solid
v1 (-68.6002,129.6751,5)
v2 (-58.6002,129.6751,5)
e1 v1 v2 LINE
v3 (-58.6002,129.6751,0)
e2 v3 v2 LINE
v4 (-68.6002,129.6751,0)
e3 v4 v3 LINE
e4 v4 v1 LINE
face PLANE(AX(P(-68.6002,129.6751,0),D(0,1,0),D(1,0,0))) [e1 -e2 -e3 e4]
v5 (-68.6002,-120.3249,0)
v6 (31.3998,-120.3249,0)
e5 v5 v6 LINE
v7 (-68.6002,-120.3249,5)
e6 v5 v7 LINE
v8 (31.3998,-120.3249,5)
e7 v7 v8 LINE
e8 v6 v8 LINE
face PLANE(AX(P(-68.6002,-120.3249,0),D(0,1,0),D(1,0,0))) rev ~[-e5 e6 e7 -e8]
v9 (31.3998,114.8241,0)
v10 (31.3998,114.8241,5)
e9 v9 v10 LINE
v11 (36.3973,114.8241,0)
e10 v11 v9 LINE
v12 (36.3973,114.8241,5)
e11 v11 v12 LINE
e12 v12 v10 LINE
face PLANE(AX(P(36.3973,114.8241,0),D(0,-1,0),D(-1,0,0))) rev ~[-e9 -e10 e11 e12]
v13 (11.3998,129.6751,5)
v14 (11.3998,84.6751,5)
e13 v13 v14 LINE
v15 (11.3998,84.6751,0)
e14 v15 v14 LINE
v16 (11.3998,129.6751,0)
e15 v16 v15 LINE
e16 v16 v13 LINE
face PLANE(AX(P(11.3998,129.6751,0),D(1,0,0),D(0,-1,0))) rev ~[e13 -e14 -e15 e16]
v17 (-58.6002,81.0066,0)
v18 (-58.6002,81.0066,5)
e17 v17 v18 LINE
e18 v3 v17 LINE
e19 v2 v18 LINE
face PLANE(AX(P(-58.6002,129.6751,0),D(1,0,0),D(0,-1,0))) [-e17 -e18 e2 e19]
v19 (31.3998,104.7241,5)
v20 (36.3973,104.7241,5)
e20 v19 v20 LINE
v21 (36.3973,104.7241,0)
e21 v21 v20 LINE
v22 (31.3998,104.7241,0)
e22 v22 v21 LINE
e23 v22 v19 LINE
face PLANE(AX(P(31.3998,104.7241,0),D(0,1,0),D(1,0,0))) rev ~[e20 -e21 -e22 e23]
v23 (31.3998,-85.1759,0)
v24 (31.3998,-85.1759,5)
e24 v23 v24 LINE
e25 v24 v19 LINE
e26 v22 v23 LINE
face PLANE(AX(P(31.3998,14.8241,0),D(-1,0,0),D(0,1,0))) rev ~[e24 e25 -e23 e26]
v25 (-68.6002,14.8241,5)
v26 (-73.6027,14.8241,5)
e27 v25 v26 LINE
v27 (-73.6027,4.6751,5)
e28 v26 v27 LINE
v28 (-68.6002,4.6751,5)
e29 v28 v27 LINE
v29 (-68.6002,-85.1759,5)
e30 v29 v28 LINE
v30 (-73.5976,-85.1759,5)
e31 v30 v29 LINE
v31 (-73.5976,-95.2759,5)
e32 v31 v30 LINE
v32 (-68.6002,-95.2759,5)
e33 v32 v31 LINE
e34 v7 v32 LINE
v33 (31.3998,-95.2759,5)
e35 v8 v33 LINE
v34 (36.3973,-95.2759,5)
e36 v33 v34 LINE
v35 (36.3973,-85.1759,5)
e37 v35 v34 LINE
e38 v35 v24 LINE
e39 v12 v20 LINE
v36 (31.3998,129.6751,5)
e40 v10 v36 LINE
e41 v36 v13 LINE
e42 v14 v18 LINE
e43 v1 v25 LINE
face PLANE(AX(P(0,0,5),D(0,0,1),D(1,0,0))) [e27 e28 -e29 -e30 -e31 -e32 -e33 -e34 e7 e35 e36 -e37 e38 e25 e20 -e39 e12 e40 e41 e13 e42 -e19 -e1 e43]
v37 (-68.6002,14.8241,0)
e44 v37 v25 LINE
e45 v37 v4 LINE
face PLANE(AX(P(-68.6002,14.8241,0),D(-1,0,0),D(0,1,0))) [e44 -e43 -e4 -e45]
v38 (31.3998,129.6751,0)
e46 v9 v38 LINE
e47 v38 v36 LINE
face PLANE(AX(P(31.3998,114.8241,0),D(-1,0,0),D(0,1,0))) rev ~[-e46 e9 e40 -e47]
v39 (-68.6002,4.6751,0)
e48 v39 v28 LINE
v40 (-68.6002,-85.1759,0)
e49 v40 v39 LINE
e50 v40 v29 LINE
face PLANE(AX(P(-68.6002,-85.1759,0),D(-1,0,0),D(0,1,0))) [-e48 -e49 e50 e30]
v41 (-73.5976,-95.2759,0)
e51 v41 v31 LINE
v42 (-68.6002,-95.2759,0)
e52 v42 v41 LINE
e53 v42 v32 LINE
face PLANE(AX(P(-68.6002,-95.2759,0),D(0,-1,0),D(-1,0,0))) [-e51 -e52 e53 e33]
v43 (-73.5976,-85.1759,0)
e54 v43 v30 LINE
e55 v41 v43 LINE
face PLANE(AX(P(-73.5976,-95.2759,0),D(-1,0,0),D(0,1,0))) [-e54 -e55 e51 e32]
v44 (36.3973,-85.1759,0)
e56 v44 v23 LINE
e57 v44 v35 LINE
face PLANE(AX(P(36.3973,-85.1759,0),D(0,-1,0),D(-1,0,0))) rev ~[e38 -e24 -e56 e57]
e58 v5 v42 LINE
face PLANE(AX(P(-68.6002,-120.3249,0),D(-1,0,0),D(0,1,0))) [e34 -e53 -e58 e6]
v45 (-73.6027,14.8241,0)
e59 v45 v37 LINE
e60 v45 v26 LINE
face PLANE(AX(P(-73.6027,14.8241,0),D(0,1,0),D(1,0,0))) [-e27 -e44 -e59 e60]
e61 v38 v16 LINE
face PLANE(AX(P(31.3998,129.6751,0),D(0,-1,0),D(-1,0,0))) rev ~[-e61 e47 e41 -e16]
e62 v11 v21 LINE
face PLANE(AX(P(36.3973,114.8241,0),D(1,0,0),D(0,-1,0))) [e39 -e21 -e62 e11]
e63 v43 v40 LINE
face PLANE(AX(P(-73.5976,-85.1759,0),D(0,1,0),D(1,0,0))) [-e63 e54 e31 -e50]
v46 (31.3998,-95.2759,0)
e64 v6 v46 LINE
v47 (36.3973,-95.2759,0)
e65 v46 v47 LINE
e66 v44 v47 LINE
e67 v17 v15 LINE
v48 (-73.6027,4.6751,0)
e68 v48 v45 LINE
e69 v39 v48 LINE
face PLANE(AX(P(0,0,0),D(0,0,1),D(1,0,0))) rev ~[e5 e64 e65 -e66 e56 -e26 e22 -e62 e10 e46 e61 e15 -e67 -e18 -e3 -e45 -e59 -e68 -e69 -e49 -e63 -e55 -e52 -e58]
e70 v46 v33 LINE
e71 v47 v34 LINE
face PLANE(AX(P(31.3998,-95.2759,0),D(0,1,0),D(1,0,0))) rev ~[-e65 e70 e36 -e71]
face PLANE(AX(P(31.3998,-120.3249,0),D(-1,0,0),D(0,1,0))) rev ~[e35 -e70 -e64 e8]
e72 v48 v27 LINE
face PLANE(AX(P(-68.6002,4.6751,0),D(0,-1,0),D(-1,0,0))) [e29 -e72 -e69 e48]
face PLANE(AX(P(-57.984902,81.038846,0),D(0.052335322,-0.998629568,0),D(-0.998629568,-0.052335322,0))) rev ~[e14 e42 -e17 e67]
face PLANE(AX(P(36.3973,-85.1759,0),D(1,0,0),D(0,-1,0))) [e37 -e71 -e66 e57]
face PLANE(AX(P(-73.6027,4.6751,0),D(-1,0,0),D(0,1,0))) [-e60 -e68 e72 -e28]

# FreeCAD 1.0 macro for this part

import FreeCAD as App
import Part
import Sketcher

V = App.Vector
Q = App.Units.Quantity


def add_polygon(sketch, points):
    """Adds a closed chain of lines whose ends are joined by coincident constraints."""
    first, n = sketch.GeometryCount, len(points)
    for a, b in zip(points, points[1:] + points[:1]):
        sketch.addGeometry(Part.LineSegment(App.Vector(*a, 0), App.Vector(*b, 0)), False)
    for i in range(n):
        sketch.addConstraint(Sketcher.Constraint("Coincident", first + i, 2, first + (i + 1) % n, 1))

doc = App.newDocument("Part")
body = doc.addObject("PartDesign::Body", "Body")

sketch1 = body.newObject("Sketcher::SketchObject", "Sketch")
sketch1.AttachmentSupport = (doc.getObject("XY_Plane"), [""])
sketch1.MapMode = "FlatFace"
add_polygon(sketch1, [(-68.6, -95.3), (-68.6, -120.3), (31.4, -120.3), (31.4, -95.3), (36.4, -95.3), (36.4, -85.2), (31.4, -85.2), (31.4, 104.7), (36.4, 104.7), (36.4, 114.8), (31.4, 114.8), (31.4, 129.7), (11.4, 129.7), (11.4, 84.7), (-58.6, 81), (-58.6, 129.7), (-68.6, 129.7), (-68.6, 14.8), (-73.6, 14.8), (-73.6, 4.7), (-68.6, 4.7), (-68.6, -85.2), (-73.6, -85.2), (-73.6, -95.3)])
sketch1.addConstraint([
    Sketcher.Constraint("Vertical", 0),
    Sketcher.Constraint("Horizontal", 1),
    Sketcher.Constraint("Vertical", 2),
    Sketcher.Constraint("Horizontal", 3),
    Sketcher.Constraint("Vertical", 4),
    Sketcher.Constraint("Horizontal", 5),
    Sketcher.Constraint("Vertical", 6),
    Sketcher.Constraint("Horizontal", 7),
    Sketcher.Constraint("Vertical", 8),
    Sketcher.Constraint("Horizontal", 9),
    Sketcher.Constraint("Vertical", 10),
    Sketcher.Constraint("Horizontal", 11),
    Sketcher.Constraint("Vertical", 12),
    Sketcher.Constraint("Vertical", 14),
    Sketcher.Constraint("Horizontal", 15),
    Sketcher.Constraint("Vertical", 16),
    Sketcher.Constraint("Horizontal", 17),
    Sketcher.Constraint("Vertical", 18),
    Sketcher.Constraint("Horizontal", 19),
    Sketcher.Constraint("Vertical", 20),
    Sketcher.Constraint("Horizontal", 21),
    Sketcher.Constraint("Vertical", 22),
    Sketcher.Constraint("Horizontal", 23),
    Sketcher.Constraint("Horizontal", 11, 2, 14, 2),
    Sketcher.Constraint("Horizontal", 5, 2, 20, 2),
    Sketcher.Constraint("Horizontal", 3, 2, 22, 2),
    Sketcher.Constraint("Vertical", 2, 2, 5, 2),
    Sketcher.Constraint("Vertical", 4, 2, 7, 2),
    Sketcher.Constraint("Vertical", 6, 2, 9, 2),
    Sketcher.Constraint("Vertical", 0, 2, 15, 2),
    Sketcher.Constraint("Vertical", 16, 2, 19, 2),
    Sketcher.Constraint("Equal", 9, 21),
    Sketcher.Constraint("Equal", 4, 8),
    Sketcher.Constraint("DistanceX", 1, 1, 1, 2, Q("100 mm")),
    Sketcher.Constraint("DistanceX", 11, 2, 11, 1, Q("20 mm")),
    Sketcher.Constraint("DistanceX", 15, 2, 15, 1, Q("10 mm")),
    Sketcher.Constraint("DistanceY", 20, 2, 16, 2, Q("100 mm")),
    Sketcher.Constraint("DistanceY", 12, 2, 12, 1, Q("45 mm")),
    Sketcher.Constraint("Angle", 13, Q("-177 deg")),
    Sketcher.Constraint("DistanceY", 4, 1, 4, 2, Q("10.1 mm")),
    Sketcher.Constraint("DistanceY", 6, 1, 6, 2, Q("189.9 mm")),
    Sketcher.Constraint("DistanceY", 18, 2, 12, 2, Q("80 mm")),
    Sketcher.Constraint("DistanceY", 0, 2, 0, 1, Q("25.049 mm")),
    Sketcher.Constraint("DistanceY", 10, 1, 10, 2, Q("14.851 mm")),
    Sketcher.Constraint("DistanceX", 3, 1, 3, 2, Q("4.9975 mm")),
    Sketcher.Constraint("DistanceX", 17, 2, 17, 1, Q("5.0025 mm")),
    Sketcher.Constraint("DistanceY", 0, 2, -1, 1, Q("120.325 mm")),
    Sketcher.Constraint("DistanceX", 0, 2, -1, 1, Q("68.6002 mm")),
])
pad1 = body.newObject("PartDesign::Pad", "Pad")
pad1.Profile = sketch1
pad1.Length = 5

doc.recompute()
